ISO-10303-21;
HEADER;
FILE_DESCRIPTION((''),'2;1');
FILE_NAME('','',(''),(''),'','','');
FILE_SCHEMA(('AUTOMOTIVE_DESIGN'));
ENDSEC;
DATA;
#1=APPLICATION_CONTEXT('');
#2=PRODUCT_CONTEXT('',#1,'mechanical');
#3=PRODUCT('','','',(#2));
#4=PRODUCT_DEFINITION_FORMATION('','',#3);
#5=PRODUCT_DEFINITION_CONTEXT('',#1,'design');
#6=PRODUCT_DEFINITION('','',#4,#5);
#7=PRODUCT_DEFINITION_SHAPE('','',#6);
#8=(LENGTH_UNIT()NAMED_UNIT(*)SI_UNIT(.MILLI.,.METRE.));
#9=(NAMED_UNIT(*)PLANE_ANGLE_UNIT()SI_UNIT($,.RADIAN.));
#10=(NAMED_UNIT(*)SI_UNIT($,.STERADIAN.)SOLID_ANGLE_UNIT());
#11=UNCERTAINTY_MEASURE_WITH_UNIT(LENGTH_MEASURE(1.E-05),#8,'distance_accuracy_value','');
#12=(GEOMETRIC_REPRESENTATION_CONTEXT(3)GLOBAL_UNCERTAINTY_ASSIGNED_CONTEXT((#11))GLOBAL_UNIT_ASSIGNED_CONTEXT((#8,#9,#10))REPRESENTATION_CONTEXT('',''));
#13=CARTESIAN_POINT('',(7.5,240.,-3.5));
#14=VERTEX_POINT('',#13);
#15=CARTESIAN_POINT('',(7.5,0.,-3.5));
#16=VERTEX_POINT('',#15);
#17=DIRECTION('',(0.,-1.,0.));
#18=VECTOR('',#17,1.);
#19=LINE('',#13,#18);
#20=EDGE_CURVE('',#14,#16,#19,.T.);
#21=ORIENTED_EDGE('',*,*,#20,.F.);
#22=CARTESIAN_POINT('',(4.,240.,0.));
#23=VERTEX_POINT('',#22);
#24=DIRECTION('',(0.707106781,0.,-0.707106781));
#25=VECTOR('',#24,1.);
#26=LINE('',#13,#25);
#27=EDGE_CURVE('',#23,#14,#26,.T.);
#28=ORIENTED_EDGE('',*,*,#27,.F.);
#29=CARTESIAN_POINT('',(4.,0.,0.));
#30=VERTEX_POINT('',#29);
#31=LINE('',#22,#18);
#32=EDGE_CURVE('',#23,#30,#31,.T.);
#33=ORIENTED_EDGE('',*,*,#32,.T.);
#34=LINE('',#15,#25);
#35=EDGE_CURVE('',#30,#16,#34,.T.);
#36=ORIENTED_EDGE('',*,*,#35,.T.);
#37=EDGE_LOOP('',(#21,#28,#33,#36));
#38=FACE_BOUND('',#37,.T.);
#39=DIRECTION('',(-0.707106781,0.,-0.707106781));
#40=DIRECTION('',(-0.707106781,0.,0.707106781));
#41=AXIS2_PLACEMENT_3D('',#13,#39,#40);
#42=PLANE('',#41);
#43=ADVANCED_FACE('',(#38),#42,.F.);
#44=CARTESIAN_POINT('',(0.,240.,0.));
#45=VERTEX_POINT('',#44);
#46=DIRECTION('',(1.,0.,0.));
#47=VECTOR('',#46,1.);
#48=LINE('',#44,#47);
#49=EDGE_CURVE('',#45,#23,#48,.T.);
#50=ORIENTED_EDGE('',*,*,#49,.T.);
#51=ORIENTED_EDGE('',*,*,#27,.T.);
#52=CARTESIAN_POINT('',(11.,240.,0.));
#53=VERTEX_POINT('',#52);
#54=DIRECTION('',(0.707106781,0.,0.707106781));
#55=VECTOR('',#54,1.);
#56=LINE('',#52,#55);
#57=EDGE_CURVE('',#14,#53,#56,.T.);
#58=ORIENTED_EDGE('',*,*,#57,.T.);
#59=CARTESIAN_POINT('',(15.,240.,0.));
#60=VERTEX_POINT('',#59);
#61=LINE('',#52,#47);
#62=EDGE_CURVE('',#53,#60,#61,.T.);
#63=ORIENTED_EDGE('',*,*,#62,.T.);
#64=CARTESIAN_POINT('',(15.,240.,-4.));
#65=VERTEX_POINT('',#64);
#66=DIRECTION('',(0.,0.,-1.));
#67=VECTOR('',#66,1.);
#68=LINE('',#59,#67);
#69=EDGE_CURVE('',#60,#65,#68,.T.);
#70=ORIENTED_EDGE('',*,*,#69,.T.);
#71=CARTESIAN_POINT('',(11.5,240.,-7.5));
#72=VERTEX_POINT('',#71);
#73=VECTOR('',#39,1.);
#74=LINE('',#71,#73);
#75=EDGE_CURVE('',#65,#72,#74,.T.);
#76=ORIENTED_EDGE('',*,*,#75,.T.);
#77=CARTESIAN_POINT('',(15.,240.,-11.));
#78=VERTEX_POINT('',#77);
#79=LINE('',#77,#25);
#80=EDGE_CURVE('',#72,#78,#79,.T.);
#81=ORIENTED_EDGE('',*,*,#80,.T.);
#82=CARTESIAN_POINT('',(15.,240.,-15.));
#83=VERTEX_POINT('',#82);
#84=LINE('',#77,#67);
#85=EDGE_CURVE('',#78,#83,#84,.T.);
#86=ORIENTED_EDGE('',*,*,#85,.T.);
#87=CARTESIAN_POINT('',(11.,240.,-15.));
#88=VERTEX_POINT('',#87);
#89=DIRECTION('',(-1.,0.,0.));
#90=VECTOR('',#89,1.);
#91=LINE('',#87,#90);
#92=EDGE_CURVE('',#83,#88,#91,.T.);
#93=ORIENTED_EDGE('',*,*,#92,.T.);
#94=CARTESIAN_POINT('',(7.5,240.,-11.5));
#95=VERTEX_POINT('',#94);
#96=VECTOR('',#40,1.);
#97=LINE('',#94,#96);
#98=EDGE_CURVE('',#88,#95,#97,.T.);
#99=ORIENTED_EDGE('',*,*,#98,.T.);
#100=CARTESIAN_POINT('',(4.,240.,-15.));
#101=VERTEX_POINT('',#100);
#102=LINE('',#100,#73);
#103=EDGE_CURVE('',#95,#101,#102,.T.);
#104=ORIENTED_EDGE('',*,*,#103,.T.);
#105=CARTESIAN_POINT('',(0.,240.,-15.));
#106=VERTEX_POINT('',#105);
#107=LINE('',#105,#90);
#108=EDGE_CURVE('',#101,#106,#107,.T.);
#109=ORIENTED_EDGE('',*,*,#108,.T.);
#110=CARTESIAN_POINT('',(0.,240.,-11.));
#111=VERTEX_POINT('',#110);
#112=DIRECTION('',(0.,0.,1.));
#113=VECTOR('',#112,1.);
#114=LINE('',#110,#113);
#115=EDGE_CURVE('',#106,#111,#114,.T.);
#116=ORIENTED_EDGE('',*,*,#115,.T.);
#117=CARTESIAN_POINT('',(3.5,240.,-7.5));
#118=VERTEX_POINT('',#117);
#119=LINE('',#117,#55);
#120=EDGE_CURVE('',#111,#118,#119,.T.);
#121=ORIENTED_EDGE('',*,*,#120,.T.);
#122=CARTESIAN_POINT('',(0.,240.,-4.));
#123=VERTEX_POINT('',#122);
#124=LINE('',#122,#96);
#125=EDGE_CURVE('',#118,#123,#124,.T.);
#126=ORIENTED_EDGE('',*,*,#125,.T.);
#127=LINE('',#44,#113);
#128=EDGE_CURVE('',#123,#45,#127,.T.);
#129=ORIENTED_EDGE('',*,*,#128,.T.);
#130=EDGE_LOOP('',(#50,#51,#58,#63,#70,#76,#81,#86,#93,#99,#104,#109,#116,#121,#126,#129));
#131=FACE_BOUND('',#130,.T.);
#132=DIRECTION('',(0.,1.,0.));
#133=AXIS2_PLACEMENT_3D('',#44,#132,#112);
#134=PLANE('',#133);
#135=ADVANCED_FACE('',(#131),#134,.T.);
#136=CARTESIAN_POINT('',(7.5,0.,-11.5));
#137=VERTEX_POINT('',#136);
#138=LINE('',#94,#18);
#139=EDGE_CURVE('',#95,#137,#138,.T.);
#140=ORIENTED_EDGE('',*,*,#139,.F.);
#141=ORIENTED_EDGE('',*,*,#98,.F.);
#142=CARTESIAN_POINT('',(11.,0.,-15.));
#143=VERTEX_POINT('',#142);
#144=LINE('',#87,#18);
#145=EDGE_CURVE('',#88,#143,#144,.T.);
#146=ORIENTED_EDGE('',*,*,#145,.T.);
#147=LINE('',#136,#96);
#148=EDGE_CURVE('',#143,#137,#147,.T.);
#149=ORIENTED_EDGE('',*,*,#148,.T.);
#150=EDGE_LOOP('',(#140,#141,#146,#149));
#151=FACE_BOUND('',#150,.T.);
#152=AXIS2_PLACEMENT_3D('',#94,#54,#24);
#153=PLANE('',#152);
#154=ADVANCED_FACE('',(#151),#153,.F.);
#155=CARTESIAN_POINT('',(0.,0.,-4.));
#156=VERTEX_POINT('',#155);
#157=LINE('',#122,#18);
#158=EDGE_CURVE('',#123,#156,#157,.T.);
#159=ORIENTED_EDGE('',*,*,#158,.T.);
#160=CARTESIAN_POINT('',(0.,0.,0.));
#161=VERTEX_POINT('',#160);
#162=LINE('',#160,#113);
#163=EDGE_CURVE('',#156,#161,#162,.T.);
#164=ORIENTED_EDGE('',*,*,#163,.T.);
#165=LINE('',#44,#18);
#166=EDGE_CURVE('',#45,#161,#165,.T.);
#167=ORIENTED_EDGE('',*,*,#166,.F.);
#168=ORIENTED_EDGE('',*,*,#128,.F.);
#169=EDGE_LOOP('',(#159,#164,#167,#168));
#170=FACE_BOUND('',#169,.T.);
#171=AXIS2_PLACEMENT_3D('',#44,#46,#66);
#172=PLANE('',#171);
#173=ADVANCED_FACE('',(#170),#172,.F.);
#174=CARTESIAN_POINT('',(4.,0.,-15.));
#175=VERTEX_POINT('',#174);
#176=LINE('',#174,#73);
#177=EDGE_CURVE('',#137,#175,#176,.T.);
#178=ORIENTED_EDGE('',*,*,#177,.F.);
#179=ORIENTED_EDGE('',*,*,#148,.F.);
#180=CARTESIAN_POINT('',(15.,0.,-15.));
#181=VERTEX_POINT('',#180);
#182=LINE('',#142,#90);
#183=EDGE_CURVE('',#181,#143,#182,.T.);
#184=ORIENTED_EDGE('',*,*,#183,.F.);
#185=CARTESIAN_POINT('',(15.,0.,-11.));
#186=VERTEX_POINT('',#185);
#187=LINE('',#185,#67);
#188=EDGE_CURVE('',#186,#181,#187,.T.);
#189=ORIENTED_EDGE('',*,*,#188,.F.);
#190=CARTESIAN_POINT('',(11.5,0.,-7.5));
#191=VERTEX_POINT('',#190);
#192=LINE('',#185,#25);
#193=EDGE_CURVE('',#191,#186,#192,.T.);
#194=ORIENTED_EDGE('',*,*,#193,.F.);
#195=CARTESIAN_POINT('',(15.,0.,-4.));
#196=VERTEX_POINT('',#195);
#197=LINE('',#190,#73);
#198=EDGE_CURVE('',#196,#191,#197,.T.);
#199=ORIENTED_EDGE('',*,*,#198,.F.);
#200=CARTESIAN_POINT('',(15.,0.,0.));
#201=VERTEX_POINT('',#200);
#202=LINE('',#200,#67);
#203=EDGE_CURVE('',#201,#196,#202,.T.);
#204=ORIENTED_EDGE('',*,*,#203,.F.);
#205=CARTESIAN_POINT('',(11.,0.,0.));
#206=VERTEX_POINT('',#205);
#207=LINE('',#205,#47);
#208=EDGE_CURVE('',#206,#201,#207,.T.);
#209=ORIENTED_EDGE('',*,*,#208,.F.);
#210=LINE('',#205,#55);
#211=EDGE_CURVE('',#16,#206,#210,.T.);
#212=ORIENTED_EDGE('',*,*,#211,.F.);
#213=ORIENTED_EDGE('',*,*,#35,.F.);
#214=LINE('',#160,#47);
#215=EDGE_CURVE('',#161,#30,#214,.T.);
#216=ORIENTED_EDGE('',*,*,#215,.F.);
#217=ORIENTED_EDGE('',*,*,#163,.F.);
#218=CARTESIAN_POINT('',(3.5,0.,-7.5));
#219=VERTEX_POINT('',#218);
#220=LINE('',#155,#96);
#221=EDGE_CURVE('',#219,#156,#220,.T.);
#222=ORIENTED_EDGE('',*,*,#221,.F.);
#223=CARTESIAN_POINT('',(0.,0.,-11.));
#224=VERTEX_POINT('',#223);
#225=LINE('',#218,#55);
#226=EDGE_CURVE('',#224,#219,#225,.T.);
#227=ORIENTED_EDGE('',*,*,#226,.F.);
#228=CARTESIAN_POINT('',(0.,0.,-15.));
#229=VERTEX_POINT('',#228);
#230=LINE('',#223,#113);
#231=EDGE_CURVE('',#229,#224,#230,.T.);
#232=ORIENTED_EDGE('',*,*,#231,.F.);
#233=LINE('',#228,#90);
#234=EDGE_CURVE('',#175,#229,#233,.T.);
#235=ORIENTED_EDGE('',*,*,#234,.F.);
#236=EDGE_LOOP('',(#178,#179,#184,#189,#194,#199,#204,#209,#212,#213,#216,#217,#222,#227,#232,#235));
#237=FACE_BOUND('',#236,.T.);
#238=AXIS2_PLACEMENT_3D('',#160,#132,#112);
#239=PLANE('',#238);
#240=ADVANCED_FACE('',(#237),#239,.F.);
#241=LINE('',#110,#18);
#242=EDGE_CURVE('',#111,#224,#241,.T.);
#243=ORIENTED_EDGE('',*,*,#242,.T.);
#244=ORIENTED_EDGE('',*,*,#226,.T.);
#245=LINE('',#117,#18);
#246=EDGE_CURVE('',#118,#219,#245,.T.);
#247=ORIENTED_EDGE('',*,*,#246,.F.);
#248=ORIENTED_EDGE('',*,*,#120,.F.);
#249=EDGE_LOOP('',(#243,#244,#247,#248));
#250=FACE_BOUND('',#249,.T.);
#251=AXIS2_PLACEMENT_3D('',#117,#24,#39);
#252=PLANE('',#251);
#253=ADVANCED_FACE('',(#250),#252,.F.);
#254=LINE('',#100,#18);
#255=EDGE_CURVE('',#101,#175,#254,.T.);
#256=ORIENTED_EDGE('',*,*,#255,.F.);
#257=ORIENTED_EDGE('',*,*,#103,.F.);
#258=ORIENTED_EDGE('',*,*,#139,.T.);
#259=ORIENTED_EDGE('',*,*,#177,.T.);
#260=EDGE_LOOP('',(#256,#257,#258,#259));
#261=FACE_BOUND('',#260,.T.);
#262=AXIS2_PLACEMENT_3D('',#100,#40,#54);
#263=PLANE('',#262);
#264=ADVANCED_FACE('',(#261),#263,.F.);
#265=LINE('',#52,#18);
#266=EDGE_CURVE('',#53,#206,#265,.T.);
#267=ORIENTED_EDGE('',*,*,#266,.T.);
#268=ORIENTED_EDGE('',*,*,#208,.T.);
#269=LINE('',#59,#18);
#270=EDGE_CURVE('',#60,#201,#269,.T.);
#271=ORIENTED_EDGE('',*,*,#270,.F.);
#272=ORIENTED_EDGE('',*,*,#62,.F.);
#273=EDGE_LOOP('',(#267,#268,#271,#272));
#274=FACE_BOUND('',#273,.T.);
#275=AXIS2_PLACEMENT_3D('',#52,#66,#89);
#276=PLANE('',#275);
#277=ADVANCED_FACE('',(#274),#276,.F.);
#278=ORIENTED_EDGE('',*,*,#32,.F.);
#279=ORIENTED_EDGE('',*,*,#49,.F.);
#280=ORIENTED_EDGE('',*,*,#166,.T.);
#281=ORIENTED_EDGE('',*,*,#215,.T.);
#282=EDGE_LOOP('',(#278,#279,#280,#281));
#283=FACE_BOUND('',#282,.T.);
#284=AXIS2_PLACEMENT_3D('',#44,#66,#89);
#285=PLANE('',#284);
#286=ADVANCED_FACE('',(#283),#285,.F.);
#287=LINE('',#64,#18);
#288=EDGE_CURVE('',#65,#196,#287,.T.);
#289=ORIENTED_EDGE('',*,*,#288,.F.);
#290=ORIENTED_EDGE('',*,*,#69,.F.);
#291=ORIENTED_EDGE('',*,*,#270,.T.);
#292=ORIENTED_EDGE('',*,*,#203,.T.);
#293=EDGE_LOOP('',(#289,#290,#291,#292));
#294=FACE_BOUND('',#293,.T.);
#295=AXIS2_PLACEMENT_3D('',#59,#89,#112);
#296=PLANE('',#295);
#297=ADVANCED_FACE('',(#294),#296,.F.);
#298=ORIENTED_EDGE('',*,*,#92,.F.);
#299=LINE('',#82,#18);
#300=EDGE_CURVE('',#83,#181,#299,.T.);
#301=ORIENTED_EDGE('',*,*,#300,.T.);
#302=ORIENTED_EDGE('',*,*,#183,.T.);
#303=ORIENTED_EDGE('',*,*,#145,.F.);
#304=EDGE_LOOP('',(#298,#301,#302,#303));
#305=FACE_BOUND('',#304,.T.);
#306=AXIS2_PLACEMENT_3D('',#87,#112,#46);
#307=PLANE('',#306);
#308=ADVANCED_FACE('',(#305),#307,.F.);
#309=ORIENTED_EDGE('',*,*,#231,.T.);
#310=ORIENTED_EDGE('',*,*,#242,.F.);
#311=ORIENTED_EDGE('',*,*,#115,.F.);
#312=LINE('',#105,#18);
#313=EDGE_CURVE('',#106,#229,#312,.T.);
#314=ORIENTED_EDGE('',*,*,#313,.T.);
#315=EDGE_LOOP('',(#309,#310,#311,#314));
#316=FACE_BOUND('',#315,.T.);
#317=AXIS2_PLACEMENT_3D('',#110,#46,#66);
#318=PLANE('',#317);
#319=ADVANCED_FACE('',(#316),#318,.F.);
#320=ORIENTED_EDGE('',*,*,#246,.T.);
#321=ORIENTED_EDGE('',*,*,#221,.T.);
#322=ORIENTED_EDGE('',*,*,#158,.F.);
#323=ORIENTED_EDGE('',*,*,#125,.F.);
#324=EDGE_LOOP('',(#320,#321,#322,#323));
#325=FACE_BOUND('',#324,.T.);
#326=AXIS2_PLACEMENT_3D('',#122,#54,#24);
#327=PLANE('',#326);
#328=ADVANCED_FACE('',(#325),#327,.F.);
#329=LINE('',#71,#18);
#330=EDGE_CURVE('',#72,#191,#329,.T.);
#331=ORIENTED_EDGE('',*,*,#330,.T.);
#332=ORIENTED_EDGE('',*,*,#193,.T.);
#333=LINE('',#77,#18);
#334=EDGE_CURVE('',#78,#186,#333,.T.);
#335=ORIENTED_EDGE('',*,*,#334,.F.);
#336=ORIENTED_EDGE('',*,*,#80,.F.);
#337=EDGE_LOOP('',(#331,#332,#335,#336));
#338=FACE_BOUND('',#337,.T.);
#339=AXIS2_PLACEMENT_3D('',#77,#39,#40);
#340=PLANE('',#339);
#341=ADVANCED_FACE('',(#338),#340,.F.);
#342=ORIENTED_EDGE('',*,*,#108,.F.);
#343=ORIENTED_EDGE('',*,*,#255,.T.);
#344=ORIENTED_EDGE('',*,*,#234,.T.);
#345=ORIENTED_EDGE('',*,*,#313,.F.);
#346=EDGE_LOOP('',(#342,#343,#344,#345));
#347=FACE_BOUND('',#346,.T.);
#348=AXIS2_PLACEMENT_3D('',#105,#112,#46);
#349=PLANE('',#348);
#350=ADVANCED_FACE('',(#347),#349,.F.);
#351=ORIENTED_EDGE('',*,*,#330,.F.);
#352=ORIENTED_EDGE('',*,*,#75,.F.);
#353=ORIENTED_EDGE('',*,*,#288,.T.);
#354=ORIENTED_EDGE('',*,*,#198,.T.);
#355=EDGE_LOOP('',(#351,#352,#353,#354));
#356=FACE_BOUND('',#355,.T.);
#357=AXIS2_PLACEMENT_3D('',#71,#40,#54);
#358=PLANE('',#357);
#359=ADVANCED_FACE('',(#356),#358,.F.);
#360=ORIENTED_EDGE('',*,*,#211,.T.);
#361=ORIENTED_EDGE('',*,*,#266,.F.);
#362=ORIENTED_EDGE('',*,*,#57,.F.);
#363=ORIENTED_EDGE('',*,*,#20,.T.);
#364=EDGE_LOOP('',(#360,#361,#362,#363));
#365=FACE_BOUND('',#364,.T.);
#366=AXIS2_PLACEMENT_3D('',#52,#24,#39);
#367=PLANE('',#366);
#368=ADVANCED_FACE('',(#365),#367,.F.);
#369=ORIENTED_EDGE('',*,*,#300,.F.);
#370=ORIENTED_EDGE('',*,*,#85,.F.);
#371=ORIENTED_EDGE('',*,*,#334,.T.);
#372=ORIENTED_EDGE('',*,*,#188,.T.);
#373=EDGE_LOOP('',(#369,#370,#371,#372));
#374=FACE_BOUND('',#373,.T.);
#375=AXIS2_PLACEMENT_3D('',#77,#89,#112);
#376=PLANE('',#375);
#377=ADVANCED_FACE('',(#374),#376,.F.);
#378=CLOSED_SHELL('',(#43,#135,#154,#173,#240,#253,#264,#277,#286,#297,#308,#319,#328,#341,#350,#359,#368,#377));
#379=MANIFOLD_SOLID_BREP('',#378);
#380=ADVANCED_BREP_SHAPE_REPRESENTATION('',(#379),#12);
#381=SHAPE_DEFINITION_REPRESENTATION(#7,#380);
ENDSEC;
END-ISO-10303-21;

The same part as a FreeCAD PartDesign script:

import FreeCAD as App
import Part
import Sketcher
from FreeCAD import Vector

doc = App.newDocument("Part")
params = doc.addObject("Spreadsheet::Sheet", "Params")
for row, (alias, value) in enumerate([
    ("sketch1_width", "4 mm"),
    ("pad1_length", "240 mm"),
], start=1):
    params.set(f"A{row}", alias)
    params.set(f"B{row}", "=" + value)
    params.setAlias(f"B{row}", alias)

body = doc.addObject("PartDesign::Body", "Body")

sketch1 = body.newObject("Sketcher::SketchObject", "Sketch")
sketch1.AttachmentSupport = (doc.getObject("XZ_Plane"), [""])
sketch1.MapMode = "FlatFace"
sketch1.addGeometry([
    Part.LineSegment(Vector(0, 0, 0), Vector(4, 0, 0)),
    Part.LineSegment(Vector(4, 0, 0), Vector(7.5, -3.5, 0)),
    Part.LineSegment(Vector(7.5, -3.5, 0), Vector(11, 0, 0)),
    Part.LineSegment(Vector(11, 0, 0), Vector(15, 0, 0)),
    Part.LineSegment(Vector(15, 0, 0), Vector(15, -4, 0)),
    Part.LineSegment(Vector(15, -4, 0), Vector(11.5, -7.5, 0)),
    Part.LineSegment(Vector(11.5, -7.5, 0), Vector(15, -11, 0)),
    Part.LineSegment(Vector(15, -11, 0), Vector(15, -15, 0)),
    Part.LineSegment(Vector(15, -15, 0), Vector(11, -15, 0)),
    Part.LineSegment(Vector(11, -15, 0), Vector(7.5, -11.5, 0)),
    Part.LineSegment(Vector(7.5, -11.5, 0), Vector(4, -15, 0)),
    Part.LineSegment(Vector(4, -15, 0), Vector(0, -15, 0)),
    Part.LineSegment(Vector(0, -15, 0), Vector(0, -11, 0)),
    Part.LineSegment(Vector(0, -11, 0), Vector(3.5, -7.5, 0)),
    Part.LineSegment(Vector(3.5, -7.5, 0), Vector(0, -4, 0)),
    Part.LineSegment(Vector(0, -4, 0), Vector(0, 0, 0)),
], False)
sketch1.addConstraint([
    Sketcher.Constraint("Coincident", 0, 2, 1, 1),
    Sketcher.Constraint("Coincident", 1, 2, 2, 1),
    Sketcher.Constraint("Coincident", 2, 2, 3, 1),
    Sketcher.Constraint("Coincident", 3, 2, 4, 1),
    Sketcher.Constraint("Coincident", 4, 2, 5, 1),
    Sketcher.Constraint("Coincident", 5, 2, 6, 1),
    Sketcher.Constraint("Coincident", 6, 2, 7, 1),
    Sketcher.Constraint("Coincident", 7, 2, 8, 1),
    Sketcher.Constraint("Coincident", 8, 2, 9, 1),
    Sketcher.Constraint("Coincident", 9, 2, 10, 1),
    Sketcher.Constraint("Coincident", 10, 2, 11, 1),
    Sketcher.Constraint("Coincident", 11, 2, 12, 1),
    Sketcher.Constraint("Coincident", 12, 2, 13, 1),
    Sketcher.Constraint("Coincident", 13, 2, 14, 1),
    Sketcher.Constraint("Coincident", 14, 2, 15, 1),
    Sketcher.Constraint("Coincident", 15, 2, 0, 1),
    Sketcher.Constraint("Horizontal", 0),
    Sketcher.Constraint("Horizontal", 3),
    Sketcher.Constraint("Vertical", 4),
    Sketcher.Constraint("Vertical", 7),
    Sketcher.Constraint("Horizontal", 8),
    Sketcher.Constraint("Horizontal", 11),
    Sketcher.Constraint("Vertical", 12),
    Sketcher.Constraint("Vertical", 15),
    Sketcher.Constraint("Coincident", 15, 2, -1, 1),
    Sketcher.Constraint("PointOnObject", 2, 2, -1),
    Sketcher.Constraint("PointOnObject", 11, 2, -2),
    Sketcher.Constraint("Perpendicular", 1, 2),
    Sketcher.Constraint("Parallel", 2, 5),
    Sketcher.Constraint("Perpendicular", 5, 6),
    Sketcher.Constraint("Parallel", 6, 9),
    Sketcher.Constraint("Perpendicular", 9, 10),
    Sketcher.Constraint("Parallel", 10, 13),
    Sketcher.Constraint("Perpendicular", 13, 14),
    Sketcher.Constraint("Horizontal", 8, 2, 10, 2),
    Sketcher.Constraint("Horizontal", 6, 2, 12, 2),
    Sketcher.Constraint("Horizontal", 5, 2, 13, 2),
    Sketcher.Constraint("Horizontal", 4, 2, 14, 2),
    Sketcher.Constraint("Vertical", 4, 2, 6, 2),
    Sketcher.Constraint("Vertical", 2, 2, 8, 2),
    Sketcher.Constraint("Vertical", 1, 2, 9, 2),
    Sketcher.Constraint("Equal", 0, 3),
    Sketcher.Constraint("Equal", 11, 4),
    Sketcher.Constraint("Equal", 4, 7),
    Sketcher.Constraint("Equal", 2, 5),
    Sketcher.Constraint("DistanceX", 0, 1, 0, 2, 4.0),
    Sketcher.Constraint("DistanceX", -1, 1, 2, 2, 11.0),
])
sketch1.setExpression("Constraints[45]", "Params.sketch1_width")
pad1 = body.newObject("PartDesign::Pad", "Pad")
pad1.Profile = sketch1
pad1.setExpression("Length", "Params.pad1_length")
pad1.Reversed = True

doc.recompute()
